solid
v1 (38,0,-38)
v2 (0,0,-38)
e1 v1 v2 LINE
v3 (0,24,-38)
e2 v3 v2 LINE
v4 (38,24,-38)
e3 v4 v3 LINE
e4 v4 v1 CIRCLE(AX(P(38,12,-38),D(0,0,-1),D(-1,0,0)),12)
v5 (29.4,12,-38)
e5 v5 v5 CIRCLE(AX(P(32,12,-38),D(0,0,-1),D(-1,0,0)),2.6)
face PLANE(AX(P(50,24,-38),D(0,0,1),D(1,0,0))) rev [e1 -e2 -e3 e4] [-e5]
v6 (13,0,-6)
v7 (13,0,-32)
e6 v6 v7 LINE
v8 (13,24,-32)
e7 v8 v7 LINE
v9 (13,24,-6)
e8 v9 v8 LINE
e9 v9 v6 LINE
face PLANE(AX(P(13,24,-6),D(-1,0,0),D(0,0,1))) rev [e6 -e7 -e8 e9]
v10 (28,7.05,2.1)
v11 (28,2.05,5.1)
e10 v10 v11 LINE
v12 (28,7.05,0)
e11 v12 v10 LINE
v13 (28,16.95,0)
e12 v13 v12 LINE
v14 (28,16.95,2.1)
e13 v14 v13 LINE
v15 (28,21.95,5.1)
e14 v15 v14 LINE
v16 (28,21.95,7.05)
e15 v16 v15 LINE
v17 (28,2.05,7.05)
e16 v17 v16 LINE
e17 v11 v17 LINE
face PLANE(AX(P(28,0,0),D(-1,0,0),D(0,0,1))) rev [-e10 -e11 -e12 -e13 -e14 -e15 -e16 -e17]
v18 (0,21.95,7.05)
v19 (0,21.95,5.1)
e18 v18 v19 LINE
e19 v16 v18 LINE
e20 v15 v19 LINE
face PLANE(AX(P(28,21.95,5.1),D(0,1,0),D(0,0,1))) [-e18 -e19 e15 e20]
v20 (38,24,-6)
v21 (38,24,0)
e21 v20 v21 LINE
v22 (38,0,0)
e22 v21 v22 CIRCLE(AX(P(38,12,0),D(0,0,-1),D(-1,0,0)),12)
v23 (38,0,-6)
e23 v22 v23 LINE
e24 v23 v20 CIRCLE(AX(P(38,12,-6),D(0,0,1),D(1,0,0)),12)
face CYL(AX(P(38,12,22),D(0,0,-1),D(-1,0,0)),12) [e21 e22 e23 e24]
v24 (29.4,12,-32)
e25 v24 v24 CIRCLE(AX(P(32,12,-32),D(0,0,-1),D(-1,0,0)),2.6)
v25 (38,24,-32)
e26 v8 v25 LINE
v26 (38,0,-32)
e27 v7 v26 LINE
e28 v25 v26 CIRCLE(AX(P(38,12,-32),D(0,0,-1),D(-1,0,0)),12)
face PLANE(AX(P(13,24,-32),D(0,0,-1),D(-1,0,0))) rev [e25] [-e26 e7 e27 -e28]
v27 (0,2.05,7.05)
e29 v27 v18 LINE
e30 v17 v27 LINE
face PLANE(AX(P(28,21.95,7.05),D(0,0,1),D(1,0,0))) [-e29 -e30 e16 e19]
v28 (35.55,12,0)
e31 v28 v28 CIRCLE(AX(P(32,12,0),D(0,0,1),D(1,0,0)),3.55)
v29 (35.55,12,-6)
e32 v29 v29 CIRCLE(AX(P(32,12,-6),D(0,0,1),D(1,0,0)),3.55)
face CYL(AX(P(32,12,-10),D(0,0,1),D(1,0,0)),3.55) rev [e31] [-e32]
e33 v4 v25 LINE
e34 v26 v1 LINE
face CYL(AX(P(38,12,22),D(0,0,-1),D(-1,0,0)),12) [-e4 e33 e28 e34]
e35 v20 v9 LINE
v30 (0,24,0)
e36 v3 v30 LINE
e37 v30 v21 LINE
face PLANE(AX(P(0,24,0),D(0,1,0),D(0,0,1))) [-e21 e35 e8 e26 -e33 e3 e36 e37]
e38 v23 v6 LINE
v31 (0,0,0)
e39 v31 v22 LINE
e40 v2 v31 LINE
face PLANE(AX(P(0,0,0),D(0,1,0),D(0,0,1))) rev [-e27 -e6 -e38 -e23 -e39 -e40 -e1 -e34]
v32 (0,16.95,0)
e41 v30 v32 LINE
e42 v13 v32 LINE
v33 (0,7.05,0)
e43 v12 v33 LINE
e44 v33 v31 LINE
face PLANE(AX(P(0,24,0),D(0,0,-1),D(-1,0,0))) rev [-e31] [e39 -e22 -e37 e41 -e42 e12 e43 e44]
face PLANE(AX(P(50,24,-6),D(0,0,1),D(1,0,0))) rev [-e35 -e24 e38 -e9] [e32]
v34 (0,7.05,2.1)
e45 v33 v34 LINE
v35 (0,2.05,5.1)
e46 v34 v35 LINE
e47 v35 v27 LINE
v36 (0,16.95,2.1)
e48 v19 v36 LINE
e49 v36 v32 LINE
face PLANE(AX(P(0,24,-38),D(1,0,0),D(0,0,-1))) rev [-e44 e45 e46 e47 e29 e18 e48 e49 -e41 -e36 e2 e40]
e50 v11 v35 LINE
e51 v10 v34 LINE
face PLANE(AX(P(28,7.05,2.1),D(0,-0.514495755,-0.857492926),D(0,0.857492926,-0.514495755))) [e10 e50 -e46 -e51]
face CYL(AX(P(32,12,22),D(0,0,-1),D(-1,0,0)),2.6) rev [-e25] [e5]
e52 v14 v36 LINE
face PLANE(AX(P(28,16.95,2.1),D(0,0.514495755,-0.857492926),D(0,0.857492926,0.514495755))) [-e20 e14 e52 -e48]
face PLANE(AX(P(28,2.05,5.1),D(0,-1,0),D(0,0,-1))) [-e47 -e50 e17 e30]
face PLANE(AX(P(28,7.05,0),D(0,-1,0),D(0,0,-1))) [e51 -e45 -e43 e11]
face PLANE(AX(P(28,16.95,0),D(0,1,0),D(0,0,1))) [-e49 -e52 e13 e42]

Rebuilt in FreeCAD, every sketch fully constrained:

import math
import FreeCAD as App
import Part
import Sketcher

V = App.Vector


def add_polygon(sketch, points):
    """Adds a closed chain of lines whose ends are joined by coincident constraints."""
    first, n = sketch.GeometryCount, len(points)
    for a, b in zip(points, points[1:] + points[:1]):
        sketch.addGeometry(Part.LineSegment(App.Vector(*a, 0), App.Vector(*b, 0)), False)
    for i in range(n):
        sketch.addConstraint(Sketcher.Constraint("Coincident", first + i, 2, first + (i + 1) % n, 1))

doc = App.newDocument("Part")
body = doc.addObject("PartDesign::Body", "Body")

# Sketch on XZ plane
sketch1 = body.newObject("Sketcher::SketchObject", "Sketch")
sketch1.AttachmentSupport = (doc.getObject("XZ_Plane"), [""])
sketch1.MapMode = "FlatFace"
add_polygon(sketch1, [(0, 0), (50, 0), (50, -6), (13, -6), (13, -32), (50, -32), (50, -38), (0, -38)])  # lines 0-7
sketch1.addConstraint([
    Sketcher.Constraint("Horizontal", 0),
    Sketcher.Constraint("Vertical", 1),
    Sketcher.Constraint("Horizontal", 2),
    Sketcher.Constraint("Vertical", 3),
    Sketcher.Constraint("Horizontal", 4),
    Sketcher.Constraint("Vertical", 5),
    Sketcher.Constraint("Horizontal", 6),
    Sketcher.Constraint("Vertical", 7),
    Sketcher.Constraint("Coincident", 7, 2, -1, 1),
    Sketcher.Constraint("Vertical", 1, 2, 4, 2),
    Sketcher.Constraint("Equal", 1, 5),
    Sketcher.Constraint("DistanceX", 0, 1, 0, 2, 50.0),
    Sketcher.Constraint("DistanceX", 2, 2, 2, 1, 37.0),
    Sketcher.Constraint("DistanceY", 1, 2, 1, 1, 6.0),
    Sketcher.Constraint("DistanceY", 3, 2, 3, 1, 26.0),
])
pad1 = body.newObject("PartDesign::Pad", "Pad")
pad1.Profile = sketch1
pad1.Length = 24
pad1.Reversed = True

# Sketch on XY plane
sketch2 = body.newObject("Sketcher::SketchObject", "Sketch001")
sketch2.AttachmentSupport = (doc.getObject("XY_Plane"), [""])
sketch2.MapMode = "FlatFace"
sketch2.AttachmentOffset = App.Placement(V(0, 0, -38), App.Rotation())
sketch2.addGeometry([
    Part.LineSegment(V(38, 24, 0), V(50, 24, 0)),  # 0
    Part.LineSegment(V(50, 24, 0), V(50, 12, 0)),  # 1
    Part.ArcOfCircle(Part.Circle(V(38, 12, 0), V(0, 0, 1), 12), math.radians(0), math.radians(90)),  # 2
    Part.ArcOfCircle(Part.Circle(V(38, 12, 0), V(0, 0, 1), 12), math.radians(-90), math.radians(0)),  # 3
    Part.LineSegment(V(50, 12, 0), V(50, 0, 0)),  # 4
    Part.LineSegment(V(50, 0, 0), V(38, 0, 0)),  # 5
    Part.Circle(V(32, 12, 0), V(0, 0, 1), 2.6),  # 6
], False)
sketch2.addConstraint([
    Sketcher.Constraint("Coincident", 0, 2, 1, 1),
    Sketcher.Constraint("Tangent", 1, 2, 2, 1),
    Sketcher.Constraint("Tangent", 2, 2, 0, 1),
    Sketcher.Constraint("Tangent", 3, 2, 4, 1),
    Sketcher.Constraint("Coincident", 4, 2, 5, 1),
    Sketcher.Constraint("Tangent", 5, 2, 3, 1),
    Sketcher.Constraint("Horizontal", 0),
    Sketcher.Constraint("Vertical", 1),
    Sketcher.Constraint("Vertical", 4),
    Sketcher.Constraint("Horizontal", 5),
    Sketcher.Constraint("Coincident", 3, 3, 2, 3),
    Sketcher.Constraint("Equal", 2, 3),
    Sketcher.Constraint("PointOnObject", 4, 2, -1),
    Sketcher.Constraint("Horizontal", 3, 3, 6, 3),
    Sketcher.Constraint("Radius", 2, 12.0),
    Sketcher.Constraint("Diameter", 6, 5.2),
    Sketcher.Constraint("DistanceX", -1, 1, 2, 3, 38.0),
    Sketcher.Constraint("DistanceX", -1, 1, 6, 3, 32.0),
])
pocket1 = body.newObject("PartDesign::Pocket", "Pocket")
pocket1.Profile = sketch2
pocket1.Length = 60
pocket1.Reversed = True

# Sketch on XY plane
sketch3 = body.newObject("Sketcher::SketchObject", "Sketch002")
sketch3.AttachmentSupport = (doc.getObject("XY_Plane"), [""])
sketch3.MapMode = "FlatFace"
sketch3.addGeometry(Part.Circle(V(32, 12, 0), V(0, 0, 1), 3.5), False)
sketch3.addConstraint([
    Sketcher.Constraint("Diameter", 0, 7.1),
    Sketcher.Constraint("DistanceX", -1, 1, 0, 3, 32.0),
    Sketcher.Constraint("DistanceY", -1, 1, 0, 3, 12.0),
])
pocket2 = body.newObject("PartDesign::Pocket", "Pocket001")
pocket2.Profile = sketch3
pocket2.Length = 10

# Sketch on YZ plane
sketch4 = body.newObject("Sketcher::SketchObject", "Sketch003")
sketch4.AttachmentSupport = (doc.getObject("YZ_Plane"), [""])
sketch4.MapMode = "FlatFace"
add_polygon(sketch4, [(16.9, 2.1), (16.9, 0), (7, 0), (7, 2.1), (2, 5.1), (2, 7), (21.9, 7), (21.9, 5.1)])  # lines 0-7
sketch4.addConstraint([
    Sketcher.Constraint("Vertical", 0),
    Sketcher.Constraint("Horizontal", 1),
    Sketcher.Constraint("Vertical", 2),
    Sketcher.Constraint("Vertical", 4),
    Sketcher.Constraint("Horizontal", 5),
    Sketcher.Constraint("Vertical", 6),
    Sketcher.Constraint("PointOnObject", 0, 2, -1),
    Sketcher.Constraint("Horizontal", 3, 2, 6, 2),
    Sketcher.Constraint("Horizontal", 2, 2, 7, 2),
    Sketcher.Constraint("Equal", 3, 7),
    Sketcher.Constraint("DistanceX", 1, 2, 1, 1, 9.9),
    Sketcher.Constraint("DistanceX", 5, 1, 5, 2, 19.9),
    Sketcher.Constraint("DistanceY", 0, 2, 0, 1, 2.1),
    Sketcher.Constraint("DistanceY", 2, 2, 3, 2, 3.0),
    Sketcher.Constraint("DistanceY", 4, 1, 4, 2, 1.95),
    Sketcher.Constraint("DistanceX", -1, 1, 0, 2, 16.95),
])
pad2 = body.newObject("PartDesign::Pad", "Pad001")
pad2.Profile = sketch4
pad2.Length = 28

doc.recompute()
